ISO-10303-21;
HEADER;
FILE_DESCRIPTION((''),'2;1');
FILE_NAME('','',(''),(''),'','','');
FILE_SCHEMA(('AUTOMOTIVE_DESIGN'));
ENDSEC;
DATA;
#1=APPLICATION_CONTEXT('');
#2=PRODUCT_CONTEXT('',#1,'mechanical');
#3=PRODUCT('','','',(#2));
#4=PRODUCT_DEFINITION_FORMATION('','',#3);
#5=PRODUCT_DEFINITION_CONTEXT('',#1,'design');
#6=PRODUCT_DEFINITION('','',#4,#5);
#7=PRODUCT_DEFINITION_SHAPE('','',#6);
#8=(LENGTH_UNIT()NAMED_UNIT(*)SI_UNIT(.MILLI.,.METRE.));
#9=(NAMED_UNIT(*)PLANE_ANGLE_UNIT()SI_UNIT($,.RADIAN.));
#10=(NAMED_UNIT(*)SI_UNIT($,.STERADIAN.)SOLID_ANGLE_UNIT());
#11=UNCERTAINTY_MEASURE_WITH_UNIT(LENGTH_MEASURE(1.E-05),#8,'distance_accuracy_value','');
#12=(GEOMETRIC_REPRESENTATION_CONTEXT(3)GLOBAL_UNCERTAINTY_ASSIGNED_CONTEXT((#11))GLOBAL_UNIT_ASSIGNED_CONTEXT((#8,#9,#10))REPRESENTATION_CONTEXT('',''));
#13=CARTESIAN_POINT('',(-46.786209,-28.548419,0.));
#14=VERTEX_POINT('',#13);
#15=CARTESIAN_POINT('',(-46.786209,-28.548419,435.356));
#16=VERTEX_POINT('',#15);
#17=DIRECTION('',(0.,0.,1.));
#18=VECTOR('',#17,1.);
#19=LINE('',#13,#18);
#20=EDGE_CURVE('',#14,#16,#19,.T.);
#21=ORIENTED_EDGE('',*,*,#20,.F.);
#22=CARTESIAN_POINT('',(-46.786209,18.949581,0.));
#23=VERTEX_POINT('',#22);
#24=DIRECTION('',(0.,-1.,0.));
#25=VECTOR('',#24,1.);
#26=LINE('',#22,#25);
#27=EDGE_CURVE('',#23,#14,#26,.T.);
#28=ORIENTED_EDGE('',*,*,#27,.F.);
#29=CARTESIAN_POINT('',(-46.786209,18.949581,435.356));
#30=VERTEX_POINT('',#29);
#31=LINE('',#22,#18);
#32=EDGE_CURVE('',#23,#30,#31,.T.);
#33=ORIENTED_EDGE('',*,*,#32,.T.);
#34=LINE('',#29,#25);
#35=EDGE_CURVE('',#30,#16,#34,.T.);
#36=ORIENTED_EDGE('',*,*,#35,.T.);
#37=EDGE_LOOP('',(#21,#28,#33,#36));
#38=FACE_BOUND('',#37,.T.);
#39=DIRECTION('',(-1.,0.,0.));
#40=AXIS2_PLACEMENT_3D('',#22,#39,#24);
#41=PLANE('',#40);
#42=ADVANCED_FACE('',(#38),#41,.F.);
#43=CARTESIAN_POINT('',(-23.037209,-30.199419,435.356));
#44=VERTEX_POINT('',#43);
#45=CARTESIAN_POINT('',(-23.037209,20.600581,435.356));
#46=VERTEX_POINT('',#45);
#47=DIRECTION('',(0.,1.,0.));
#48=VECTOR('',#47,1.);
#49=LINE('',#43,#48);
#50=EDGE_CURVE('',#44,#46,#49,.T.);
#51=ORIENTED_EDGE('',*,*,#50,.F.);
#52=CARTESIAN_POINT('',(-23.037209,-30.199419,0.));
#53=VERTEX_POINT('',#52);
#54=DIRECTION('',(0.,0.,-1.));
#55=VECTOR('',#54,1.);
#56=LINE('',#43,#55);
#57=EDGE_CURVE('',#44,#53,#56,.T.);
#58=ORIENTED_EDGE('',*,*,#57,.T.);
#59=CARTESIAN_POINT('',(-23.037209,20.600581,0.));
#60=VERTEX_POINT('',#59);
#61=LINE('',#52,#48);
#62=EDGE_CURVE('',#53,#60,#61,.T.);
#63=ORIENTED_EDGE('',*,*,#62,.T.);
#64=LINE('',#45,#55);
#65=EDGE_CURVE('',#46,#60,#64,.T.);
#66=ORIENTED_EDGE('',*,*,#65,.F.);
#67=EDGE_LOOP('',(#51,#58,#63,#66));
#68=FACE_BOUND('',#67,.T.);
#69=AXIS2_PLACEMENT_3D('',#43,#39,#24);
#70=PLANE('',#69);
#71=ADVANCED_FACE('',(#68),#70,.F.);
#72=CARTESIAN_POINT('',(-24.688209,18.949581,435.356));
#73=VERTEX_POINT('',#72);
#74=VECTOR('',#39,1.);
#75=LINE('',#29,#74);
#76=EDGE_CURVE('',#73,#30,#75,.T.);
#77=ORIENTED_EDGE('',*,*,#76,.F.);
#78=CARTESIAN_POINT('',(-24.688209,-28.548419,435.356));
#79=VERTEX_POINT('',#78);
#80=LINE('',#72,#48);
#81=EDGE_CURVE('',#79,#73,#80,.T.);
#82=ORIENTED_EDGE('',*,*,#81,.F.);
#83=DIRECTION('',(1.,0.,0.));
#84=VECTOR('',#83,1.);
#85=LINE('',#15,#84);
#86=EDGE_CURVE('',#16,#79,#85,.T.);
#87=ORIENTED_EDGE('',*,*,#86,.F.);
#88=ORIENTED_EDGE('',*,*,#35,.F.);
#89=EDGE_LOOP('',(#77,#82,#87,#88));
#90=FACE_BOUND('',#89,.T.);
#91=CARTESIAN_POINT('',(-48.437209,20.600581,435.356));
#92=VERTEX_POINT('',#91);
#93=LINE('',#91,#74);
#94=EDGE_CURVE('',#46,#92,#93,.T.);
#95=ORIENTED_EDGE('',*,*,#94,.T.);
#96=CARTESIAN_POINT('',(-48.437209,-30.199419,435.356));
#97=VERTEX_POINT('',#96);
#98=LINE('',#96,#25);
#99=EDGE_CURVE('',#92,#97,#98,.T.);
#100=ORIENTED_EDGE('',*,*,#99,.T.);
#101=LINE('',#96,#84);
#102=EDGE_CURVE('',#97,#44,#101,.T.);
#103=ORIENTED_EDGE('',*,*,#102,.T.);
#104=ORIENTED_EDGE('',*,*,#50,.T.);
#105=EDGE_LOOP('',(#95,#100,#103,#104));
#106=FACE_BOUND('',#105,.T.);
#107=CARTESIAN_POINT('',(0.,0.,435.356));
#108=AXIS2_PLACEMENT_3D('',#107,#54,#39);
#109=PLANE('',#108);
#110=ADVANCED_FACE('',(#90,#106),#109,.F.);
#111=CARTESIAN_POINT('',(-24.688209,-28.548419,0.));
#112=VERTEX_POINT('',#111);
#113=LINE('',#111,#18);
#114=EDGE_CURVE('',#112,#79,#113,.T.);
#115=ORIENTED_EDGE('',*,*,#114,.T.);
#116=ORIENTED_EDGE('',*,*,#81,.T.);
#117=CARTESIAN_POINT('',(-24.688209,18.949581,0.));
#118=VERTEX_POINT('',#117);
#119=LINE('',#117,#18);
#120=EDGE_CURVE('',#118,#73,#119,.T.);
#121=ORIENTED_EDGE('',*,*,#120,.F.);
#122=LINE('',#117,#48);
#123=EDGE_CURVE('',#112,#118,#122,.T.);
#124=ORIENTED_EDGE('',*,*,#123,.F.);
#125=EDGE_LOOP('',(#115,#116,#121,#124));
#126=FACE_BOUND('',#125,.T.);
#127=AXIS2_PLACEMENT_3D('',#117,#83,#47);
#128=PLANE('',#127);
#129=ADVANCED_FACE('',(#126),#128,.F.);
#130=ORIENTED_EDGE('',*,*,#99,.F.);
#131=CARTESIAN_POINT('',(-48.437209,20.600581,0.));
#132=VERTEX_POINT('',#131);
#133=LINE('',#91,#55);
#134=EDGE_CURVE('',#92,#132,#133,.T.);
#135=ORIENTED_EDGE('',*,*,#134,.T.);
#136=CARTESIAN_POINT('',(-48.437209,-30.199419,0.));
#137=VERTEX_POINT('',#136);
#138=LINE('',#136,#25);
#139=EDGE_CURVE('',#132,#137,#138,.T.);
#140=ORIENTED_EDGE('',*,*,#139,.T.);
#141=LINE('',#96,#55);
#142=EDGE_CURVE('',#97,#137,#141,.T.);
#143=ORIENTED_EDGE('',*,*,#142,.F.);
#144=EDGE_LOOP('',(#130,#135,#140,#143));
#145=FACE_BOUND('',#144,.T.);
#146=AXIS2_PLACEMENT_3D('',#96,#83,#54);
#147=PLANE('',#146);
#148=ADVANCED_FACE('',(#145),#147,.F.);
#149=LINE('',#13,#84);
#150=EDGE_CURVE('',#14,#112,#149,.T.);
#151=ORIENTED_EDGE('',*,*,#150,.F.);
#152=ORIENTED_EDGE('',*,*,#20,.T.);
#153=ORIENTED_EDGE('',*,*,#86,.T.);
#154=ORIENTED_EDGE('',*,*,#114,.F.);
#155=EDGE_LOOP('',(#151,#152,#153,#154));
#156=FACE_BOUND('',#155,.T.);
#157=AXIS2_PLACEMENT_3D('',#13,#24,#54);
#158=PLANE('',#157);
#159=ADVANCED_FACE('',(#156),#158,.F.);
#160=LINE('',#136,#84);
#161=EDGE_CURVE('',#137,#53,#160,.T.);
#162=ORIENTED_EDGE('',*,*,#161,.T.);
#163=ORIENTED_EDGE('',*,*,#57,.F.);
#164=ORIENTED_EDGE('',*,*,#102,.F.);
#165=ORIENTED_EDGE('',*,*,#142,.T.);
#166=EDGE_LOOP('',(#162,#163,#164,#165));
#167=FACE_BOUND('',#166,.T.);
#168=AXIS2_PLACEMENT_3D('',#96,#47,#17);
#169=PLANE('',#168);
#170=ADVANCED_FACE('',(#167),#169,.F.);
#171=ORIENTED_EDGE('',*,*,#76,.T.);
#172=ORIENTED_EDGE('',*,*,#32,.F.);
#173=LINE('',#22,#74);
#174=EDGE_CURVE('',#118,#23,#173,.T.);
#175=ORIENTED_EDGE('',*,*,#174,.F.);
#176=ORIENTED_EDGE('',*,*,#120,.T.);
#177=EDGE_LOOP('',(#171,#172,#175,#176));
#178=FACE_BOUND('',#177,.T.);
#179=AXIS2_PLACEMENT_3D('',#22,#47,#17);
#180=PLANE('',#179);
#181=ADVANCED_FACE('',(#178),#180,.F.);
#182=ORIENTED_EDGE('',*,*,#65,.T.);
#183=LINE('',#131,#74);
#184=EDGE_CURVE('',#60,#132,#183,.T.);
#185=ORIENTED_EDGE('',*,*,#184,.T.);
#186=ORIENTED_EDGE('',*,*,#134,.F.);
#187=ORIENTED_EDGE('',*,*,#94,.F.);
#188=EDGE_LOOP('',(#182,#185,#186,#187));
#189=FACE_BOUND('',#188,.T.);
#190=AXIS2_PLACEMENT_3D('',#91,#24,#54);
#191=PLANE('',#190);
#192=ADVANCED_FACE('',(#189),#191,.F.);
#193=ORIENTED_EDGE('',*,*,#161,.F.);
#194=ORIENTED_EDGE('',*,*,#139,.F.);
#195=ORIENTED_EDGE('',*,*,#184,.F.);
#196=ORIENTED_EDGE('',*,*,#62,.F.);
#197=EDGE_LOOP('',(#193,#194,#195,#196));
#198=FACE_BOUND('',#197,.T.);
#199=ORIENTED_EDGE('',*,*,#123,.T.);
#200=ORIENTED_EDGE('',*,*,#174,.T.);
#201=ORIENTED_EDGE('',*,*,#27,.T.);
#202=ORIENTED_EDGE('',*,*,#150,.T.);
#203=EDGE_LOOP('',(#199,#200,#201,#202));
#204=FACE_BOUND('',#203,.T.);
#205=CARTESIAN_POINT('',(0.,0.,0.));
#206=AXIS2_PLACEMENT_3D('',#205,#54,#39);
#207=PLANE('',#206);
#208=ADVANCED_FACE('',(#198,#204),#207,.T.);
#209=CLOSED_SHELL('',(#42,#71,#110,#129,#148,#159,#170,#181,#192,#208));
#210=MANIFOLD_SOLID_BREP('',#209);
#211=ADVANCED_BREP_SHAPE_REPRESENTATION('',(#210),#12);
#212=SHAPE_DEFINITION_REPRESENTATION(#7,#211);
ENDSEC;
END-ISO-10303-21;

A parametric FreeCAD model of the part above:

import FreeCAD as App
import Part
import Sketcher

V = App.Vector
Q = App.Units.Quantity

doc = App.newDocument("Part")
body = doc.addObject("PartDesign::Body", "Body")

# Sketch on XY plane
sketch1 = doc.addObject("Sketcher::SketchObject", "Sketch")
body.addObject(sketch1)
sketch1.AttachmentSupport = (doc.XY_Plane, [""])
sketch1.MapMode = "FlatFace"
sketch1.addGeometry([
    Part.LineSegment(V(-48, 21, 0), V(-48, -30, 0)),
    Part.LineSegment(V(-48, -30, 0), V(-23, -30, 0)),
    Part.LineSegment(V(-23, -30, 0), V(-23, 21, 0)),
    Part.LineSegment(V(-23, 21, 0), V(-48, 21, 0)),
], False)
sketch1.addConstraint([
    Sketcher.Constraint("Coincident", 0, 2, 1, 1),
    Sketcher.Constraint("Coincident", 1, 2, 2, 1),
    Sketcher.Constraint("Coincident", 2, 2, 3, 1),
    Sketcher.Constraint("Coincident", 3, 2, 0, 1),
    Sketcher.Constraint("Vertical", 0),
    Sketcher.Constraint("Horizontal", 1),
    Sketcher.Constraint("Vertical", 2),
    Sketcher.Constraint("Horizontal", 3),
    Sketcher.Constraint("DistanceX", 1, 1, 1, 2, Q("1 in")),
    Sketcher.Constraint("DistanceY", 0, 2, 0, 1, Q("2 in")),
    Sketcher.Constraint("DistanceX", 0, 2, -1, 1, 48.437209),
    Sketcher.Constraint("DistanceY", 0, 2, -1, 1, 30.199419),
])
pad1 = doc.addObject("PartDesign::Pad", "Pad")
body.addObject(pad1)
pad1.Profile = sketch1
pad1.Length = Q("17.14 in")

# Sketch on XY plane
sketch2 = doc.addObject("Sketcher::SketchObject", "Sketch001")
body.addObject(sketch2)
sketch2.AttachmentSupport = (doc.XY_Plane, [""])
sketch2.MapMode = "FlatFace"
sketch2.AttachmentOffset = App.Placement(V(0, 0, 17.14 * 25.4), App.Rotation())
sketch2.addGeometry([
    Part.LineSegment(V(-47, 19, 0), V(-47, -29, 0)),
    Part.LineSegment(V(-47, -29, 0), V(-25, -29, 0)),
    Part.LineSegment(V(-25, -29, 0), V(-25, 19, 0)),
    Part.LineSegment(V(-25, 19, 0), V(-47, 19, 0)),
], False)
sketch2.addConstraint([
    Sketcher.Constraint("Coincident", 0, 2, 1, 1),
    Sketcher.Constraint("Coincident", 1, 2, 2, 1),
    Sketcher.Constraint("Coincident", 2, 2, 3, 1),
    Sketcher.Constraint("Coincident", 3, 2, 0, 1),
    Sketcher.Constraint("Vertical", 0),
    Sketcher.Constraint("Horizontal", 1),
    Sketcher.Constraint("Vertical", 2),
    Sketcher.Constraint("Horizontal", 3),
    Sketcher.Constraint("DistanceX", 1, 1, 1, 2, Q("0.87 in")),
    Sketcher.Constraint("DistanceY", 0, 2, 0, 1, Q("1.87 in")),
    Sketcher.Constraint("DistanceX", 0, 2, -1, 1, 46.786209),
    Sketcher.Constraint("DistanceY", 0, 2, -1, 1, 28.548419),
])
pocket1 = doc.addObject("PartDesign::Pocket", "Pocket")
body.addObject(pocket1)
pocket1.Profile = sketch2
pocket1.Type = "ThroughAll"

doc.recompute()
